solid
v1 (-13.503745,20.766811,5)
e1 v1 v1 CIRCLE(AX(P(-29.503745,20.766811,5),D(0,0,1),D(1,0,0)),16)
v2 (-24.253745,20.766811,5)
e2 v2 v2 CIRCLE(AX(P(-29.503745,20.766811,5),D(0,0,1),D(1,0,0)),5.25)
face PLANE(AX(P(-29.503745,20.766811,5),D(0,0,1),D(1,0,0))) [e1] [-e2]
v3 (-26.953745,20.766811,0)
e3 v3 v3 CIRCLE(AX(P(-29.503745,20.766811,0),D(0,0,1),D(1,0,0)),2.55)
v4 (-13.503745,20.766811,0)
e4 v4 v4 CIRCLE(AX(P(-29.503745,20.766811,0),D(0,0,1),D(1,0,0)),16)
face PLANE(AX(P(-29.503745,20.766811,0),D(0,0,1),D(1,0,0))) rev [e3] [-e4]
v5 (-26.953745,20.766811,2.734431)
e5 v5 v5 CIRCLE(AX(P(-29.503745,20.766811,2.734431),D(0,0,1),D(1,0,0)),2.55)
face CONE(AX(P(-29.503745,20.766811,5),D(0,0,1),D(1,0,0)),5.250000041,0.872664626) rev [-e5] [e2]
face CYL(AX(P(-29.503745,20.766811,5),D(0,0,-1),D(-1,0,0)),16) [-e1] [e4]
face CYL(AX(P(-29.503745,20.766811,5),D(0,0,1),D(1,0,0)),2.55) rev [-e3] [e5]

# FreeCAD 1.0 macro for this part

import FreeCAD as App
import Part
import Sketcher

doc = App.newDocument("Part")
body = doc.addObject("PartDesign::Body", "Body")

# Sketch on XY plane
sketch1 = doc.addObject("Sketcher::SketchObject", "Sketch")
body.addObject(sketch1)
sketch1.AttachmentSupport = (doc.XY_Plane, [""])
sketch1.MapMode = "FlatFace"
sketch1.addGeometry(Part.Circle(App.Vector(-30, 21, 0), App.Vector(0, 0, 1), 16), False)
sketch1.addConstraint([
    Sketcher.Constraint("Diameter", 0, 32.0),
    Sketcher.Constraint("DistanceY", -1, 1, 0, 3, 20.766811),
    Sketcher.Constraint("DistanceX", 0, 3, -1, 1, 29.503745),
])
pad1 = doc.addObject("PartDesign::Pad", "Pad")
body.addObject(pad1)
pad1.Profile = sketch1
pad1.Length = 5

# Sketch on XY plane
sketch2 = doc.addObject("Sketcher::SketchObject", "Sketch001")
body.addObject(sketch2)
sketch2.AttachmentSupport = (doc.XY_Plane, [""])
sketch2.MapMode = "FlatFace"
sketch2.AttachmentOffset = App.Placement(App.Vector(0, 0, 5), App.Rotation())
sketch2.addGeometry(Part.Circle(App.Vector(-29.5, 20.8, 0), App.Vector(0, 0, 1), 2.5), False)
sketch2.addConstraint([
    Sketcher.Constraint("Diameter", 0, 5.1),
    Sketcher.Constraint("DistanceY", -1, 1, 0, 3, 20.766811),
    Sketcher.Constraint("DistanceX", 0, 3, -1, 1, 29.503745),
])
doc.recompute()
hole = doc.addObject("PartDesign::Hole", "Hole")
body.addObject(hole)
hole.Profile = sketch2
hole.ThreadType = "None"
hole.Diameter = 5.1
hole.DepthType = "ThroughAll"
hole.HoleCutType = "Countersink"
hole.HoleCutDiameter = 10.5
hole.HoleCutCountersinkAngle = 100

doc.recompute()
